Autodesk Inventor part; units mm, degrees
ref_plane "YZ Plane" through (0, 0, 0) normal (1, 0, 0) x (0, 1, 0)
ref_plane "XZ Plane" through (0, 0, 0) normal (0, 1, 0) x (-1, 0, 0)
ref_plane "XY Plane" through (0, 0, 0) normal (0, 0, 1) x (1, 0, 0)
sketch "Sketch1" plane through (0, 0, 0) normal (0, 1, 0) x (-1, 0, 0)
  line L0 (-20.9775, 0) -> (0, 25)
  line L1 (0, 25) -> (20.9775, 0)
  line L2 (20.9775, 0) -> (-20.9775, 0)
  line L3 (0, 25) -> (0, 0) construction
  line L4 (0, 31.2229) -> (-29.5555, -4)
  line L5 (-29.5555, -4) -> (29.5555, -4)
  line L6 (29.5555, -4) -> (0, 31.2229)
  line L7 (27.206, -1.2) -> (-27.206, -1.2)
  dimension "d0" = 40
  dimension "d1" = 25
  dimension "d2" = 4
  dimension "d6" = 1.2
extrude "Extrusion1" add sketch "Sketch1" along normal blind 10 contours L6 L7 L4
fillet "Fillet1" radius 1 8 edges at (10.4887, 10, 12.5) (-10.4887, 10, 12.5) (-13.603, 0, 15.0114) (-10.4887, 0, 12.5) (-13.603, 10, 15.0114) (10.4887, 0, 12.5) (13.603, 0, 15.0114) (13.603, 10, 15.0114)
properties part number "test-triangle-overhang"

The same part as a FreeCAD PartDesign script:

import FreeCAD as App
import Part
import Sketcher
Q = App.Units.Quantity


def edges_at(feature, points):
    """Names of the edges that pass closest to the given points."""
    edges = feature.Shape.Edges
    near = lambda p: min(range(len(edges)), key=lambda i: edges[i].distToShape(Part.Vertex(*p))[0])
    return sorted({f"Edge{near(p) + 1}" for p in points})

doc = App.newDocument("Part")
body = doc.addObject("PartDesign::Body", "Body")

sketch1 = body.newObject("Sketcher::SketchObject", "Sketch")
sketch1.AttachmentSupport = (doc.getObject("XZ_Plane"), [""])
sketch1.MapMode = "FlatFace"
sketch1.addGeometry([
    Part.LineSegment(App.Vector(-27.206013, -1.199989, 0), App.Vector(0, 31.2229, 0)),
    Part.LineSegment(App.Vector(0, 31.2229, 0), App.Vector(27.206013, -1.199989, 0)),
    Part.LineSegment(App.Vector(27.206, -1.2, 0), App.Vector(-27.206, -1.2, 0)),
    Part.LineSegment(App.Vector(-20.9775, 0, 0), App.Vector(20.9775, 0, 0)),
    Part.LineSegment(App.Vector(20.9775, 0, 0), App.Vector(0, 25, 0)),
    Part.LineSegment(App.Vector(0, 25, 0), App.Vector(-20.9775, 0, 0)),
], False)
sketch1.addConstraint([
    Sketcher.Constraint("Coincident", 0, 2, 1, 1),
    Sketcher.Constraint("Coincident", 1, 2, 2, 1),
    Sketcher.Constraint("Coincident", 2, 2, 0, 1),
    Sketcher.Constraint("Coincident", 3, 2, 4, 1),
    Sketcher.Constraint("Coincident", 4, 2, 5, 1),
    Sketcher.Constraint("Coincident", 5, 2, 3, 1),
    Sketcher.Constraint("Horizontal", 2),
    Sketcher.Constraint("Horizontal", 3),
    Sketcher.Constraint("Symmetric", 3, 2, 5, 2, -1, 1),
    Sketcher.Constraint("PointOnObject", 0, 2, -2),
    Sketcher.Constraint("PointOnObject", 4, 2, -2),
    Sketcher.Constraint("Parallel", 1, 4),
    Sketcher.Constraint("Parallel", 0, 5),
    Sketcher.Constraint("DistanceY", -1, 1, 4, 2, Q("25 mm")),
    Sketcher.Constraint("DistanceY", 1, 2, -1, 1, Q("1.2 mm")),
    Sketcher.Constraint("Angle", 0, Q("50 deg")),
    Sketcher.Constraint("DistanceX", 2, 2, 2, 1, Q("54.412 mm")),
])
pad1 = body.newObject("PartDesign::Pad", "Pad")
pad1.Profile = sketch1
pad1.Length = 10
pad1.Reversed = True
doc.recompute()

fillet = body.newObject("PartDesign::Fillet", "Fillet")
fillet.Base = (pad1, edges_at(pad1, [
    (10.489, 10, 12.5),
    (-10.489, 10, 12.5),
    (-13.603, 0, 15.011),
    (-10.489, 0, 12.5),
    (-13.603, 10, 15.011),
    (10.489, 0, 12.5),
    (13.603, 0, 15.011),
    (13.603, 10, 15.011),
]))
fillet.Radius = 1

doc.recompute()
